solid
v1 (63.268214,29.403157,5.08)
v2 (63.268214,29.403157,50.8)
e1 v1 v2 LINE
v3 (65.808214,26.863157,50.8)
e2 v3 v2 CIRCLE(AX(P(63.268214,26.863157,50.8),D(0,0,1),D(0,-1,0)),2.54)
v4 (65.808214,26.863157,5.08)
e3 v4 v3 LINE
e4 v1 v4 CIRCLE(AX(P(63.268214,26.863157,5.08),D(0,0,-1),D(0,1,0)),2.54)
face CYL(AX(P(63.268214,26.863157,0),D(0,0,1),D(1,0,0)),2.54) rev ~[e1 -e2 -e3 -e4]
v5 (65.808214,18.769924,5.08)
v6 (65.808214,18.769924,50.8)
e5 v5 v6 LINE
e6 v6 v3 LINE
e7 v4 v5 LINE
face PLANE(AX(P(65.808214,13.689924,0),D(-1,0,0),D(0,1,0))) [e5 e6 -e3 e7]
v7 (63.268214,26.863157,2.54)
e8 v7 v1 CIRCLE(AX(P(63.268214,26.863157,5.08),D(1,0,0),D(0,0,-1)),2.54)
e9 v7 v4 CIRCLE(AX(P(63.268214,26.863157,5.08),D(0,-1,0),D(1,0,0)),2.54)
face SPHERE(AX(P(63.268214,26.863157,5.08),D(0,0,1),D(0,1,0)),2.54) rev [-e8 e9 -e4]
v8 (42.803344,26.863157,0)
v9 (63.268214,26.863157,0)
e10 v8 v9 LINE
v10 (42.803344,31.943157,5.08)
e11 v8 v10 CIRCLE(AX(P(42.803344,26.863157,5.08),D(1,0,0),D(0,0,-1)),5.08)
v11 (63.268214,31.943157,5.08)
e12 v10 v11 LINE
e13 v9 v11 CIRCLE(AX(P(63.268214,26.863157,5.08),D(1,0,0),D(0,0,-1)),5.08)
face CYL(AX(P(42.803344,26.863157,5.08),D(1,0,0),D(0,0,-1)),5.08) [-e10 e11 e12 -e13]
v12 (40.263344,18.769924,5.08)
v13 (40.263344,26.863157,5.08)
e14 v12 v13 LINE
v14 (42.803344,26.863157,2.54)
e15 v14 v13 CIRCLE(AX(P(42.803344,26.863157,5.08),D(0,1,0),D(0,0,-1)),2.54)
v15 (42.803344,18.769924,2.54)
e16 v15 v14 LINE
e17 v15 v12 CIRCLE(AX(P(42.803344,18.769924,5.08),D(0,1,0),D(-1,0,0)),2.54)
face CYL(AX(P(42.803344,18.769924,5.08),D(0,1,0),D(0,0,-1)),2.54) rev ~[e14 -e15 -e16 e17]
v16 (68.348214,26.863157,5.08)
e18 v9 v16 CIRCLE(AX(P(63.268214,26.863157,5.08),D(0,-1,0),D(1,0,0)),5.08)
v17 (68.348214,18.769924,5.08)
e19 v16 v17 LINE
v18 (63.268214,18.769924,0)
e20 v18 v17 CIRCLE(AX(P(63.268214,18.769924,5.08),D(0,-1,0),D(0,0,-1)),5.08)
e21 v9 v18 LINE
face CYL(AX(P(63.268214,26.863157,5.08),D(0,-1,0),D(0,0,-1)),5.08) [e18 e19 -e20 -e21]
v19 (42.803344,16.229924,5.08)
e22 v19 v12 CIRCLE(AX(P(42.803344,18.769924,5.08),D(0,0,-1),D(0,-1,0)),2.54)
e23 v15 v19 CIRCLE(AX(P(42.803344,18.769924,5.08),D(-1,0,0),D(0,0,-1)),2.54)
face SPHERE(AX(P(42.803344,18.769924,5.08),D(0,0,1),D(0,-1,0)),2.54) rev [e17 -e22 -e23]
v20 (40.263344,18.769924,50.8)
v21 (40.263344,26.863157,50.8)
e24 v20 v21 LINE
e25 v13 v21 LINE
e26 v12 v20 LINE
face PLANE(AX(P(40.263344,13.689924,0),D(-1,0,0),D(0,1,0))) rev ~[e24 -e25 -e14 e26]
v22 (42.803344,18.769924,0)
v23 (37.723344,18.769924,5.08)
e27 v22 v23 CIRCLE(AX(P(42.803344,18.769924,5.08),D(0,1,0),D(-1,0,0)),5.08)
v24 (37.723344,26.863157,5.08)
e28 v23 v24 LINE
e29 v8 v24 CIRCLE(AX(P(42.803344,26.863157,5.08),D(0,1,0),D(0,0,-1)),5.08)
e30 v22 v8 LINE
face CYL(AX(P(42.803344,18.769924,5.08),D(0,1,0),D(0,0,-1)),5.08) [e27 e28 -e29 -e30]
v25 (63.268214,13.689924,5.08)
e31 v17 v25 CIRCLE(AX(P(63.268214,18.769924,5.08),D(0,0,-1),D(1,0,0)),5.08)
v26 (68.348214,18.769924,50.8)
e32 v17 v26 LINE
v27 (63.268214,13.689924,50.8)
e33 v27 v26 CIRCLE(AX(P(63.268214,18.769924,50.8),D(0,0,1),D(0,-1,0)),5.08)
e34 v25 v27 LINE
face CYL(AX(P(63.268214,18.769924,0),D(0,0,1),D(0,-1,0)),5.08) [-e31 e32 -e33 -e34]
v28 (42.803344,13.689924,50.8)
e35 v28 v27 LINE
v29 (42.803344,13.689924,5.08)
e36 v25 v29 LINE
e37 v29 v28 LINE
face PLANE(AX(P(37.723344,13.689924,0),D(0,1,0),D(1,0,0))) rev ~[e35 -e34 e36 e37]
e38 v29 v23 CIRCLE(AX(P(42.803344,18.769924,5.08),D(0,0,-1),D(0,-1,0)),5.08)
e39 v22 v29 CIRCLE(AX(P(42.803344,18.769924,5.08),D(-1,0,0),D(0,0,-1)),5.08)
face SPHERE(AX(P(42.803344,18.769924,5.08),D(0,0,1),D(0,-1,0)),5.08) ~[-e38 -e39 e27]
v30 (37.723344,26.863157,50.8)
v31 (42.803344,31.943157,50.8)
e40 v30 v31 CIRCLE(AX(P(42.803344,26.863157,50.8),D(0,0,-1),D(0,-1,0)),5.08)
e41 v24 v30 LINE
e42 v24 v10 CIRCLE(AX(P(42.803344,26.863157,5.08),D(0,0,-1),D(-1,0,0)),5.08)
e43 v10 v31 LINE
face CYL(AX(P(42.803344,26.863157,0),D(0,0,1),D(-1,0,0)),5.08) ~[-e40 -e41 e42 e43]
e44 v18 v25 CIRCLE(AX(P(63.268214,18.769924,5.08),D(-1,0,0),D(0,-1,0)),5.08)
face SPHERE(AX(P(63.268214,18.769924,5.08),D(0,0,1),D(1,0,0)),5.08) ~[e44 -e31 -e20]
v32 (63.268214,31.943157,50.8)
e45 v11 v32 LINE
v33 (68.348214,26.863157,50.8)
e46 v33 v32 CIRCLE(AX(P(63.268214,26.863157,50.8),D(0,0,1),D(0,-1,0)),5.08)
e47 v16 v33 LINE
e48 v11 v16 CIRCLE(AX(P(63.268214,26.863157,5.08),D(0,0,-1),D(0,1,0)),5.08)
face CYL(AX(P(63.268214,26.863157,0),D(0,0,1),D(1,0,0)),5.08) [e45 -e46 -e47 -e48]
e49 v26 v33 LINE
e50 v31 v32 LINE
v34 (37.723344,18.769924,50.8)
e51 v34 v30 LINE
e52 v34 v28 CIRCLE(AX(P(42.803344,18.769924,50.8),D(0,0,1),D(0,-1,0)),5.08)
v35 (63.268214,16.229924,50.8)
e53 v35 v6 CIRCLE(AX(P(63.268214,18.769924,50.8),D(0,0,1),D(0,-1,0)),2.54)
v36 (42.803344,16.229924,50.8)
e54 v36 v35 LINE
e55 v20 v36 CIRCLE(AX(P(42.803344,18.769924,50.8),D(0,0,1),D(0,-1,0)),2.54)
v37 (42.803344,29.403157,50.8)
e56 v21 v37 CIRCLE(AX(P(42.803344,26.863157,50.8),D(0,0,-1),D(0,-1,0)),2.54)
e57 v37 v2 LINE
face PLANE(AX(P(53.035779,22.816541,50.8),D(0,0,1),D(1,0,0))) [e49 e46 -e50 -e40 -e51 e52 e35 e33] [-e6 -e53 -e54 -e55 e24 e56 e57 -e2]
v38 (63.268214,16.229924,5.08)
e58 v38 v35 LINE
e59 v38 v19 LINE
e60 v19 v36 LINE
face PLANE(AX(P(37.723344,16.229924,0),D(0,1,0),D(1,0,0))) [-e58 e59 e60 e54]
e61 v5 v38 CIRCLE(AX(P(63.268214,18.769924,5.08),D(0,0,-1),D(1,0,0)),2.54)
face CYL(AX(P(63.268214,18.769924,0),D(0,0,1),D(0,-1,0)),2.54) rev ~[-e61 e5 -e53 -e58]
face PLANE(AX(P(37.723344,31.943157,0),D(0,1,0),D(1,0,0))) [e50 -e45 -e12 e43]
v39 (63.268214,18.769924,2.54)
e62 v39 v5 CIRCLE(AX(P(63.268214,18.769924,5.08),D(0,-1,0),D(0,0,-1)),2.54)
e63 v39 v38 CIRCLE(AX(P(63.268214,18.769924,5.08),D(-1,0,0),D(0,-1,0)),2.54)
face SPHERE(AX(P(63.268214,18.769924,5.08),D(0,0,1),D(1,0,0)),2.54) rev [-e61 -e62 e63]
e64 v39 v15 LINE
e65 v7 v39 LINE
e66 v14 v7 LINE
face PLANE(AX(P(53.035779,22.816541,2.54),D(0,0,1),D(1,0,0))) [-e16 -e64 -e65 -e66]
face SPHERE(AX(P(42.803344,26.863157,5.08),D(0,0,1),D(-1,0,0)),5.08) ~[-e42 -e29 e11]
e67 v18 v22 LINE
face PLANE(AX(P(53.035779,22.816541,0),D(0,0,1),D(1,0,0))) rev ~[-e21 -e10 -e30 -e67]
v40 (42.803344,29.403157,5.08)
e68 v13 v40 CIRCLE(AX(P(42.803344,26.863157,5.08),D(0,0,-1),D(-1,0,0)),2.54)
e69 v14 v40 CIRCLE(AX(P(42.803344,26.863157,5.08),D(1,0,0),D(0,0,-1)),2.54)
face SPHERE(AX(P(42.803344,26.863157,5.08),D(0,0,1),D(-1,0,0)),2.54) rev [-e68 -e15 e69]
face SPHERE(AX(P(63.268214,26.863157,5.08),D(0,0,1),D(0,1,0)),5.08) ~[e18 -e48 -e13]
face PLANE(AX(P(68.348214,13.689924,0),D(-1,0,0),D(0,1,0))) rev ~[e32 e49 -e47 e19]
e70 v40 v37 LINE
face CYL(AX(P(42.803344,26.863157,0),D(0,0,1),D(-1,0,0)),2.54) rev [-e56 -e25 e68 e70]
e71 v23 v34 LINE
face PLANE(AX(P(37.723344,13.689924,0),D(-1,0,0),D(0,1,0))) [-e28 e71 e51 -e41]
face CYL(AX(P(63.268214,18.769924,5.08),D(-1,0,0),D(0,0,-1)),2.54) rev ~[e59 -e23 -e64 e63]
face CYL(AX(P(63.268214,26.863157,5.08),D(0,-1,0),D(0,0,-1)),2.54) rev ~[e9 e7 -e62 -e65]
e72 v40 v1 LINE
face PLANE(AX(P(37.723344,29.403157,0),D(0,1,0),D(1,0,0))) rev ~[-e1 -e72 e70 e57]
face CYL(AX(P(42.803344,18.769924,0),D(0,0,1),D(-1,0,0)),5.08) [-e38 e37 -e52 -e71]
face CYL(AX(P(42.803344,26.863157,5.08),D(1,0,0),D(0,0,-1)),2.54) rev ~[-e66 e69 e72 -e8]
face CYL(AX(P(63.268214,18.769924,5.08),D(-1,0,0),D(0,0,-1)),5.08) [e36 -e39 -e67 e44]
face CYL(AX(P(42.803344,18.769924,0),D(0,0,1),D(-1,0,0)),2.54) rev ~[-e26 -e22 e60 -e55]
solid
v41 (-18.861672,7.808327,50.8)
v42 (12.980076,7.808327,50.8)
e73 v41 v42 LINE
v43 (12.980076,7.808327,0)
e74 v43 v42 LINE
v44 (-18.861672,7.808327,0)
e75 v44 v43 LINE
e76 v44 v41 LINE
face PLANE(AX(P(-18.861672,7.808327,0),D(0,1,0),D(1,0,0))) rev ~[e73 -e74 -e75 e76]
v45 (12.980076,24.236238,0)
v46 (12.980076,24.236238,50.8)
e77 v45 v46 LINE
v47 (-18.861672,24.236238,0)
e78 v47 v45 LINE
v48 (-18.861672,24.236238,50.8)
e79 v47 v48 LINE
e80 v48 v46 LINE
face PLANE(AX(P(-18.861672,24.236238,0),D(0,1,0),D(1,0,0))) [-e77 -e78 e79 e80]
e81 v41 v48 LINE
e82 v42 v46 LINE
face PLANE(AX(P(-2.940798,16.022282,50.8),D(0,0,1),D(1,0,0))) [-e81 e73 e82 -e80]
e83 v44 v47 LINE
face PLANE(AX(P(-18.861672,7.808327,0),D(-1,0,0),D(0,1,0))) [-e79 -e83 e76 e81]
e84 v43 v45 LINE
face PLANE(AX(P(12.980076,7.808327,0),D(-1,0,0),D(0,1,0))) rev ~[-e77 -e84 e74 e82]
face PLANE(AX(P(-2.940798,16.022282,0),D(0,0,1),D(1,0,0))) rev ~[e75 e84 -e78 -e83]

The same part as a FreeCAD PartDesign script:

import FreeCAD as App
import Part
import Sketcher
from FreeCAD import Vector
Q = App.Units.Quantity


def edges_at(feature, points):
    """Names of the edges that pass closest to the given points."""
    edges = feature.Shape.Edges
    near = lambda p: min(range(len(edges)), key=lambda i: edges[i].distToShape(Part.Vertex(*p))[0])
    return sorted({f"Edge{near(p) + 1}" for p in points})


def faces_at(feature, points):
    """Names of the faces that lie closest to the given points."""
    faces = feature.Shape.Faces
    near = lambda p: min(range(len(faces)), key=lambda i: faces[i].distToShape(Part.Vertex(*p))[0])
    return sorted({f"Face{near(p) + 1}" for p in points})

doc = App.newDocument("Part")
params = doc.addObject("Spreadsheet::Sheet", "Params")
for row, (alias, value) in enumerate([
    ("pad1_length", "2 in"),
    ("pad2_length", "2 in"),
    ("fillet_radius", "0.2 in"),
    ("fillet2_radius", "0.2 in"),
    ("thickness_wall", "0.1 in"),
], start=1):
    params.set(f"A{row}", alias)
    params.set(f"B{row}", "=" + value)
    params.setAlias(f"B{row}", alias)

body = doc.addObject("PartDesign::Body", "Body")

sketch1 = body.newObject("Sketcher::SketchObject", "Sketch")
sketch1.AttachmentSupport = (doc.getObject("XY_Plane"), [""])
sketch1.MapMode = "FlatFace"
sketch1.addGeometry([
    Part.LineSegment(Vector(-18.861672, 24.236238, 0), Vector(-18.861672, 7.808327, 0)),
    Part.LineSegment(Vector(-18.861672, 7.808327, 0), Vector(12.980076, 7.808327, 0)),
    Part.LineSegment(Vector(12.980076, 7.808327, 0), Vector(12.980076, 24.236238, 0)),
    Part.LineSegment(Vector(12.980076, 24.236238, 0), Vector(-18.861672, 24.236238, 0)),
], False)
sketch1.addConstraint([
    Sketcher.Constraint("Coincident", 0, 2, 1, 1),
    Sketcher.Constraint("Coincident", 1, 2, 2, 1),
    Sketcher.Constraint("Coincident", 2, 2, 3, 1),
    Sketcher.Constraint("Coincident", 3, 2, 0, 1),
    Sketcher.Constraint("Vertical", 0),
    Sketcher.Constraint("Horizontal", 1),
    Sketcher.Constraint("Vertical", 2),
    Sketcher.Constraint("Horizontal", 3),
    Sketcher.Constraint("DistanceY", 0, 2, 0, 1, Q("16.42791 mm")),
    Sketcher.Constraint("DistanceX", 1, 1, 1, 2, Q("31.841747 mm")),
    Sketcher.Constraint("DistanceX", 0, 2, -1, 1, Q("18.861672 mm")),
    Sketcher.Constraint("DistanceY", -1, 1, 0, 2, Q("7.808327 mm")),
])
pad1 = body.newObject("PartDesign::Pad", "Pad")
pad1.Profile = sketch1
pad1.setExpression("Length", "Params.pad1_length")
body2 = doc.addObject("PartDesign::Body", "Body001")

sketch2 = body2.newObject("Sketcher::SketchObject", "Sketch001")
sketch2.AttachmentSupport = (doc.getObject("XY_Plane001"), [""])
sketch2.MapMode = "FlatFace"
sketch2.addGeometry([
    Part.LineSegment(Vector(37.723344, 31.943157, 0), Vector(37.723344, 13.689924, 0)),
    Part.LineSegment(Vector(37.723344, 13.689924, 0), Vector(68.348214, 13.689924, 0)),
    Part.LineSegment(Vector(68.348214, 13.689924, 0), Vector(68.348214, 31.943157, 0)),
    Part.LineSegment(Vector(68.348214, 31.943157, 0), Vector(37.723344, 31.943157, 0)),
], False)
sketch2.addConstraint([
    Sketcher.Constraint("Coincident", 0, 2, 1, 1),
    Sketcher.Constraint("Coincident", 1, 2, 2, 1),
    Sketcher.Constraint("Coincident", 2, 2, 3, 1),
    Sketcher.Constraint("Coincident", 3, 2, 0, 1),
    Sketcher.Constraint("Vertical", 0),
    Sketcher.Constraint("Horizontal", 1),
    Sketcher.Constraint("Vertical", 2),
    Sketcher.Constraint("Horizontal", 3),
    Sketcher.Constraint("DistanceX", 1, 1, 1, 2, Q("30.62487 mm")),
    Sketcher.Constraint("DistanceY", 0, 2, 0, 1, Q("18.253233 mm")),
    Sketcher.Constraint("DistanceX", -1, 1, 0, 2, Q("37.723344 mm")),
    Sketcher.Constraint("DistanceY", -1, 1, 0, 2, Q("13.689924 mm")),
])
pad2 = body2.newObject("PartDesign::Pad", "Pad001")
pad2.Profile = sketch2
pad2.setExpression("Length", "Params.pad2_length")
doc.recompute()

fillet = body2.newObject("PartDesign::Fillet", "Fillet")
fillet.Base = (pad2, edges_at(pad2, [
    (68.348, 13.69, 25.4),
    (68.348, 31.943, 25.4),
    (37.723, 13.69, 25.4),
    (37.723, 31.943, 25.4),
]))
fillet.setExpression("Radius", "Params.fillet_radius")
doc.recompute()

fillet2 = body2.newObject("PartDesign::Fillet", "Fillet001")
fillet2.Base = (fillet, edges_at(fillet, [(53.036, 31.943, 0)]))
fillet2.setExpression("Radius", "Params.fillet2_radius")
doc.recompute()

thickness = body2.newObject("PartDesign::Thickness", "Thickness")
thickness.Base = (fillet2, faces_at(fillet2, [(53.036, 22.817, 50.8)]))
thickness.setExpression("Value", "Params.thickness_wall")
thickness.Reversed = True
thickness.Join = "Arc"

doc.recompute()
